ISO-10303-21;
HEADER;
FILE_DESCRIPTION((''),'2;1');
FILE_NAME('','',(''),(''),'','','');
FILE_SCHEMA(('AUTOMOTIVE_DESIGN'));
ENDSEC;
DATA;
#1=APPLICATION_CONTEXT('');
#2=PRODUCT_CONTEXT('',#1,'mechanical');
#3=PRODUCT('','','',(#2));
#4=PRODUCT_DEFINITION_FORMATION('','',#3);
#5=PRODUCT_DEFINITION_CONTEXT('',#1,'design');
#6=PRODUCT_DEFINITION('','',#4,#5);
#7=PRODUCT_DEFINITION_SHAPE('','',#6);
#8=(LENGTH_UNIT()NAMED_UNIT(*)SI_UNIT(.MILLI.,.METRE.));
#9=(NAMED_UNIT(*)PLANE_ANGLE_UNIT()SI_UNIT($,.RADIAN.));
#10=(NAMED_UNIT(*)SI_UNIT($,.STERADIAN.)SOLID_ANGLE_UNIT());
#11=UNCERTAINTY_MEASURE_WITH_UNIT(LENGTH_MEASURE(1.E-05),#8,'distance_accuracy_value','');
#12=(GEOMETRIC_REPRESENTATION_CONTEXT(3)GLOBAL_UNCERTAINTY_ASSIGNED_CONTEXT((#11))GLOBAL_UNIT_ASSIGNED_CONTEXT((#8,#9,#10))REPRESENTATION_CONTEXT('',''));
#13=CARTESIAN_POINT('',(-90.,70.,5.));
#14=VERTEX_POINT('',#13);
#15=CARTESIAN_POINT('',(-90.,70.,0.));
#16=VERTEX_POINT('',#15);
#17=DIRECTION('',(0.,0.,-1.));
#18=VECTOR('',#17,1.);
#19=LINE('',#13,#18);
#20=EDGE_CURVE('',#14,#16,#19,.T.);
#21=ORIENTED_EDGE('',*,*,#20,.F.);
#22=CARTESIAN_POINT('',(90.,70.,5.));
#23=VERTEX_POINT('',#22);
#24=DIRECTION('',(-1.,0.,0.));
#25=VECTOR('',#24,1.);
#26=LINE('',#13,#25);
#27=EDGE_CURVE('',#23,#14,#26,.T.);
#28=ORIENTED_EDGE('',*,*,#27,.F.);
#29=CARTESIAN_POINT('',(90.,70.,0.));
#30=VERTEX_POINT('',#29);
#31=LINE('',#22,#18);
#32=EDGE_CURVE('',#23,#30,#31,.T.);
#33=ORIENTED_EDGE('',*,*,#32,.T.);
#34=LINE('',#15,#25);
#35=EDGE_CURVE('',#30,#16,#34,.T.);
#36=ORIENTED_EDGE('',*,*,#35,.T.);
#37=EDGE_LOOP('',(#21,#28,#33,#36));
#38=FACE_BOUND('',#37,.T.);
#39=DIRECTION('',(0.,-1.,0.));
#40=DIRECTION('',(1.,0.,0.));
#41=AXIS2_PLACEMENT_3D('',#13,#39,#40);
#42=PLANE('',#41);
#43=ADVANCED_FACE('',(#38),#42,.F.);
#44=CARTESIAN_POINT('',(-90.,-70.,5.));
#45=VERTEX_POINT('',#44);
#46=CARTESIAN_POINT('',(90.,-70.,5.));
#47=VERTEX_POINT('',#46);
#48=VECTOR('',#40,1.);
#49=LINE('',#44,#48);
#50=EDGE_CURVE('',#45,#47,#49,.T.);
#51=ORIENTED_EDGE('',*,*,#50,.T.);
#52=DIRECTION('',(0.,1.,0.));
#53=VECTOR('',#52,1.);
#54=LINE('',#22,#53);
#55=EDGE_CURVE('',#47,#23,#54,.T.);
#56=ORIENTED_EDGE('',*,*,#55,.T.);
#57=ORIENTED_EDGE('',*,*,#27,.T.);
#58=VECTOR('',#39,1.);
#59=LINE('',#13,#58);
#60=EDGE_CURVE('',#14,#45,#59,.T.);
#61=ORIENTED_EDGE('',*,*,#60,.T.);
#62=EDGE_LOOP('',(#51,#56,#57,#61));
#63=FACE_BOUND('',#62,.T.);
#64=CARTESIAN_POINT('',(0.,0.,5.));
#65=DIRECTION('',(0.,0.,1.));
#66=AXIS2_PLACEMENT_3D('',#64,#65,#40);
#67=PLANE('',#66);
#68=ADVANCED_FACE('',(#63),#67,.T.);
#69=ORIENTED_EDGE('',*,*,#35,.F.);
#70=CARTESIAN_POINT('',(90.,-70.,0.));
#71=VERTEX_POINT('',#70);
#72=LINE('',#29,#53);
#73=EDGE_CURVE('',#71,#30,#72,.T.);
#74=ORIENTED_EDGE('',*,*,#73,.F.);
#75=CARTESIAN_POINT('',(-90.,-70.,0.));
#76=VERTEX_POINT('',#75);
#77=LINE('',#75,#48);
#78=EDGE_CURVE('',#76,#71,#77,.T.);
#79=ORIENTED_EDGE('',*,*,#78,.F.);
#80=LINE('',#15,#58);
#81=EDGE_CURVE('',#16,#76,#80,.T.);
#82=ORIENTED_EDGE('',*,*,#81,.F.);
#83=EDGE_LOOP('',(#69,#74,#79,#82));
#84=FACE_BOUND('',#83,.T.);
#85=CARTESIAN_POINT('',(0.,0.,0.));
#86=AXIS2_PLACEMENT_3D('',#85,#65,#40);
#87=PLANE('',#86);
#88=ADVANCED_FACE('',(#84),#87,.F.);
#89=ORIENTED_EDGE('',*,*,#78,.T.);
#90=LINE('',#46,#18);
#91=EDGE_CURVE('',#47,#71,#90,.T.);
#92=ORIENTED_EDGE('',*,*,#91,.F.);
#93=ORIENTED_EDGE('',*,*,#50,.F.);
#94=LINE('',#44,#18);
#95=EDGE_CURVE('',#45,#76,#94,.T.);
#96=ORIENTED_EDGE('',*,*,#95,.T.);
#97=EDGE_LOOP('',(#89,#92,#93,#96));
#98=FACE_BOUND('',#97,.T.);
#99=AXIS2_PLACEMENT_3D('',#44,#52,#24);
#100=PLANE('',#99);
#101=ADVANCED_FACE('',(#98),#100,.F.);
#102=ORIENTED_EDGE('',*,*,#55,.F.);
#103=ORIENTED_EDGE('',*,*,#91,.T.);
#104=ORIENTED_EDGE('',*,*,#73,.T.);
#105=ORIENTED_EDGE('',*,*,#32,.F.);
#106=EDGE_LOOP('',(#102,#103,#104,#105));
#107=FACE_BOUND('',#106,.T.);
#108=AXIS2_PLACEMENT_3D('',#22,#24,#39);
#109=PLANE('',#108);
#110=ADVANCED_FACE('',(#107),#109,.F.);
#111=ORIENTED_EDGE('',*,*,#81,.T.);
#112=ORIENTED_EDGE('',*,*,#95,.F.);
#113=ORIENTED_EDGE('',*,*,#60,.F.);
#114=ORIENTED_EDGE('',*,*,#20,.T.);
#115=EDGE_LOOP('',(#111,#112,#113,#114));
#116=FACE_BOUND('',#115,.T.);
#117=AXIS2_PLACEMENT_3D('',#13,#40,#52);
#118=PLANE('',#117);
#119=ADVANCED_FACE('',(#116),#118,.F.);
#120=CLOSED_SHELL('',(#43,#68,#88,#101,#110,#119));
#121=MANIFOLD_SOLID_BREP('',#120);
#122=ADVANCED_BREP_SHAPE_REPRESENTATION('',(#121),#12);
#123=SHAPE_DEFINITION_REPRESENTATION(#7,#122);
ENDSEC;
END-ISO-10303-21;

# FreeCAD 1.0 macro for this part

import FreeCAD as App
import Part
import Sketcher
Q = App.Units.Quantity


def add_polygon(sketch, points):
    """Adds a closed chain of lines whose ends are joined by coincident constraints."""
    first, n = sketch.GeometryCount, len(points)
    for a, b in zip(points, points[1:] + points[:1]):
        sketch.addGeometry(Part.LineSegment(App.Vector(*a, 0), App.Vector(*b, 0)), False)
    for i in range(n):
        sketch.addConstraint(Sketcher.Constraint("Coincident", first + i, 2, first + (i + 1) % n, 1))

doc = App.newDocument("Part")
body = doc.addObject("PartDesign::Body", "Body")

# Sketch on XY plane
sketch1 = body.newObject("Sketcher::SketchObject", "Sketch")
sketch1.AttachmentSupport = (doc.getObject("XY_Plane"), [""])
sketch1.MapMode = "FlatFace"
add_polygon(sketch1, [(-90, 70), (-90, -70), (90, -70), (90, 70)])  # lines 0-3
sketch1.addConstraint([
    Sketcher.Constraint("Vertical", 0),
    Sketcher.Constraint("Horizontal", 1),
    Sketcher.Constraint("Vertical", 2),
    Sketcher.Constraint("Horizontal", 3),
    Sketcher.Constraint("Symmetric", 0, 2, 2, 2, -1, 1),
    Sketcher.Constraint("DistanceX", 1, 1, 1, 2, Q("180 mm")),
    Sketcher.Constraint("DistanceY", 0, 2, 0, 1, Q("140 mm")),
])
pad1 = body.newObject("PartDesign::Pad", "Pad")
pad1.Profile = sketch1
pad1.Length = 5

doc.recompute()
